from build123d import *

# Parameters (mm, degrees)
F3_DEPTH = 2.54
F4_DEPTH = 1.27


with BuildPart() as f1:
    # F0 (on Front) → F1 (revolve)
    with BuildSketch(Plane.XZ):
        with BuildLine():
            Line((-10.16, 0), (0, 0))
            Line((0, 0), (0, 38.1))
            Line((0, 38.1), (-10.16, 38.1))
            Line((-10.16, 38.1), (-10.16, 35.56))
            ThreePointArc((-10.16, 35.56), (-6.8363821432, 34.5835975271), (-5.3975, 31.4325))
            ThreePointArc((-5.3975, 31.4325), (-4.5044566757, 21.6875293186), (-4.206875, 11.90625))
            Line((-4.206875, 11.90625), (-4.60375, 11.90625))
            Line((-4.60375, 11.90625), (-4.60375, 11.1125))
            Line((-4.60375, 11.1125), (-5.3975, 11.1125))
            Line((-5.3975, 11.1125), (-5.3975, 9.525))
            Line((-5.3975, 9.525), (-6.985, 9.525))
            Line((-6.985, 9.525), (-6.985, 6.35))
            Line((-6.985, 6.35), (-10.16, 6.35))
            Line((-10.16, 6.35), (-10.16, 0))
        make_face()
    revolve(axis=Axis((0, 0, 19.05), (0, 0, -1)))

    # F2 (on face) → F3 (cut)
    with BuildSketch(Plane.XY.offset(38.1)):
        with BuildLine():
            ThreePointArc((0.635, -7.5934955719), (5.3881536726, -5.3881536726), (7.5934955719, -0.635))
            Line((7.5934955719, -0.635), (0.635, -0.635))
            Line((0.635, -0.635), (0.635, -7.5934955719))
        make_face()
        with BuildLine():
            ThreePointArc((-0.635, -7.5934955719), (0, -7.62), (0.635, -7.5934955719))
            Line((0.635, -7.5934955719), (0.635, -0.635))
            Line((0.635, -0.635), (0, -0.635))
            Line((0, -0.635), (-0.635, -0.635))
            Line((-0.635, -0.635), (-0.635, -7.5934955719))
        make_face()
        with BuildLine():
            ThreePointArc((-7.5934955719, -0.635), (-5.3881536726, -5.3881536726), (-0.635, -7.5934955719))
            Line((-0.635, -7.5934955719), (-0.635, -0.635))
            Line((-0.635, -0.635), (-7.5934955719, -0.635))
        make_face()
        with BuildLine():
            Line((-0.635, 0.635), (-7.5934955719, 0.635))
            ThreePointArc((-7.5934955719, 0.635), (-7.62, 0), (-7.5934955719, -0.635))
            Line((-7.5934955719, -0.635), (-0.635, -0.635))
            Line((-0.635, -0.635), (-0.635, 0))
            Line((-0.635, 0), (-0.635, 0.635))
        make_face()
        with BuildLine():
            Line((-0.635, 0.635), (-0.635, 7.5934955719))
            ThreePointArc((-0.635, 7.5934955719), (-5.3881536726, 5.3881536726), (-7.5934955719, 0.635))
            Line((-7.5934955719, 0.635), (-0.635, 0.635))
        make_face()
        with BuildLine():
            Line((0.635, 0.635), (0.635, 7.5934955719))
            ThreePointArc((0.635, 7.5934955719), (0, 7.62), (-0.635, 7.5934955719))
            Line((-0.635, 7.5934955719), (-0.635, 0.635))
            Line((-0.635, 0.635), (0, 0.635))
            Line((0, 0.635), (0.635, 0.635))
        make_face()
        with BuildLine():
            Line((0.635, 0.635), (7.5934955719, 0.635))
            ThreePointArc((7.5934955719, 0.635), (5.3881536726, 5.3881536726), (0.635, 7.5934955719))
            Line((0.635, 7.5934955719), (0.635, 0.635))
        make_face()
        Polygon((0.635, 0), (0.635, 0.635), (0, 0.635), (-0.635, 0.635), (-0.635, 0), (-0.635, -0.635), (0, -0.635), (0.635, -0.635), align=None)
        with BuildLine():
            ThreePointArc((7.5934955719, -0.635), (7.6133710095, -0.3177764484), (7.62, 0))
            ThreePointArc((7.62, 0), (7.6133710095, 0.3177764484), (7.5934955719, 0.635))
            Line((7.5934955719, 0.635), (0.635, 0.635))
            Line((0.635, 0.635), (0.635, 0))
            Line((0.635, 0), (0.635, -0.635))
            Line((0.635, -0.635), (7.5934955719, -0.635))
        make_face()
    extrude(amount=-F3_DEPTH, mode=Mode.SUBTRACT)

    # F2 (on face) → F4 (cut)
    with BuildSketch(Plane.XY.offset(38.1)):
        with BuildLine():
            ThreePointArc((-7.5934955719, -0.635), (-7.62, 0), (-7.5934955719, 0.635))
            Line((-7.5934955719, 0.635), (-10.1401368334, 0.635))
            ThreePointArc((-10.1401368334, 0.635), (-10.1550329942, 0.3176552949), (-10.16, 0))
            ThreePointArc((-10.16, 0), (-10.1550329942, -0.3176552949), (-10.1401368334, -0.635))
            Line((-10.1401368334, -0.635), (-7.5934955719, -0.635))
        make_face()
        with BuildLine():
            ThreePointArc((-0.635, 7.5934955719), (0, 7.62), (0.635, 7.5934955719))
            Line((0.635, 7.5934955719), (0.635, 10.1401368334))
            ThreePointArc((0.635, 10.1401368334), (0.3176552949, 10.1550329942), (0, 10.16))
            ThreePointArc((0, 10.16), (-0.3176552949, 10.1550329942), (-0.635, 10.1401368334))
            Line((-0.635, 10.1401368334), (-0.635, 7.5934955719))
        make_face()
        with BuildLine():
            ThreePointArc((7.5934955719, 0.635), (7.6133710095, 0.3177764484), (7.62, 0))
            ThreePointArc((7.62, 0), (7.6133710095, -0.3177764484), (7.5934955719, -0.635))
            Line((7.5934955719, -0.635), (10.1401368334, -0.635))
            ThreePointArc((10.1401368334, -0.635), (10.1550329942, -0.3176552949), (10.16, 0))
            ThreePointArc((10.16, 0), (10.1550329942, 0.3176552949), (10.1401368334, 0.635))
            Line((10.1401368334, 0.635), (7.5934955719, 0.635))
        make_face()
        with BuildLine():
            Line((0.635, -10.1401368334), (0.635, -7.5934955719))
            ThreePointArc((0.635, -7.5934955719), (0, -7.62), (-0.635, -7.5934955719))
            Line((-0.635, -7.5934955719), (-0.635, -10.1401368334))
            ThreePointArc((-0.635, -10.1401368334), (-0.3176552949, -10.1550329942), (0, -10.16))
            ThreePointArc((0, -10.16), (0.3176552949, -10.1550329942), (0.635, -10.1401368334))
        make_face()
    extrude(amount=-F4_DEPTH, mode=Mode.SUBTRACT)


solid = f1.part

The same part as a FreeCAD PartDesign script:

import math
import FreeCAD as App
import Part
import Sketcher
from FreeCAD import Vector
Q = App.Units.Quantity

doc = App.newDocument("Part")
body = doc.addObject("PartDesign::Body", "Body")

sketch1 = doc.addObject("Sketcher::SketchObject", "Sketch")
body.addObject(sketch1)
sketch1.AttachmentSupport = (doc.XZ_Plane, [""])
sketch1.MapMode = "FlatFace"
sketch1.addGeometry(Part.LineSegment(Vector(-10.16, 0, 0), Vector(0, 0, 0)), False)
sketch1.addGeometry(Part.LineSegment(Vector(0, 0, 0), Vector(0, 38.1, 0)), False)
sketch1.addGeometry(Part.LineSegment(Vector(0, 38.1, 0), Vector(-10.16, 38.1, 0)), False)
sketch1.addGeometry(Part.LineSegment(Vector(-10.16, 38.1, 0), Vector(-10.16, 35.56, 0)), False)
sketch1.addGeometry(Part.ArcOfCircle(Part.Circle(Vector(-9.57, 31.43, 0), Vector(0, 0, 1), 4.17), math.radians(0), math.radians(98)), False)
sketch1.addGeometry(Part.ArcOfCircle(Part.Circle(Vector(-164.73, 11.92, 0), Vector(0, 0, 1), 160.52), math.radians(0), math.radians(6.98)), False)
sketch1.addGeometry(Part.LineSegment(Vector(-4.21, 11.91, 0), Vector(-4.6, 11.91, 0)), False)
sketch1.addGeometry(Part.LineSegment(Vector(-4.6, 11.91, 0), Vector(-4.6, 11.11, 0)), False)
sketch1.addGeometry(Part.LineSegment(Vector(-4.6, 11.11, 0), Vector(-5.4, 11.11, 0)), False)
sketch1.addGeometry(Part.LineSegment(Vector(-5.4, 11.11, 0), Vector(-5.4, 9.53, 0)), False)
sketch1.addGeometry(Part.LineSegment(Vector(-5.4, 9.53, 0), Vector(-6.99, 9.53, 0)), False)
sketch1.addGeometry(Part.LineSegment(Vector(-6.99, 9.53, 0), Vector(-6.99, 6.35, 0)), False)
sketch1.addGeometry(Part.LineSegment(Vector(-6.99, 6.35, 0), Vector(-10.16, 6.35, 0)), False)
sketch1.addGeometry(Part.LineSegment(Vector(-10.16, 6.35, 0), Vector(-10.16, 0, 0)), False)
sketch1.addConstraint(Sketcher.Constraint("Coincident", 0, 2, 1, 1))
sketch1.addConstraint(Sketcher.Constraint("Coincident", 1, 2, 2, 1))
sketch1.addConstraint(Sketcher.Constraint("Coincident", 2, 2, 3, 1))
sketch1.addConstraint(Sketcher.Constraint("Coincident", 3, 2, 4, 2))
sketch1.addConstraint(Sketcher.Constraint("Coincident", 4, 1, 5, 2))
sketch1.addConstraint(Sketcher.Constraint("Coincident", 5, 1, 6, 1))
sketch1.addConstraint(Sketcher.Constraint("Coincident", 6, 2, 7, 1))
sketch1.addConstraint(Sketcher.Constraint("Coincident", 7, 2, 8, 1))
sketch1.addConstraint(Sketcher.Constraint("Coincident", 8, 2, 9, 1))
sketch1.addConstraint(Sketcher.Constraint("Coincident", 9, 2, 10, 1))
sketch1.addConstraint(Sketcher.Constraint("Coincident", 10, 2, 11, 1))
sketch1.addConstraint(Sketcher.Constraint("Coincident", 11, 2, 12, 1))
sketch1.addConstraint(Sketcher.Constraint("Coincident", 12, 2, 13, 1))
sketch1.addConstraint(Sketcher.Constraint("Coincident", 13, 2, 0, 1))
sketch1.addConstraint(Sketcher.Constraint("Horizontal", 0))
sketch1.addConstraint(Sketcher.Constraint("Vertical", 1))
sketch1.addConstraint(Sketcher.Constraint("Horizontal", 2))
sketch1.addConstraint(Sketcher.Constraint("Vertical", 3))
sketch1.addConstraint(Sketcher.Constraint("Horizontal", 6))
sketch1.addConstraint(Sketcher.Constraint("Vertical", 7))
sketch1.addConstraint(Sketcher.Constraint("Horizontal", 8))
sketch1.addConstraint(Sketcher.Constraint("Vertical", 9))
sketch1.addConstraint(Sketcher.Constraint("Horizontal", 10))
sketch1.addConstraint(Sketcher.Constraint("Vertical", 11))
sketch1.addConstraint(Sketcher.Constraint("Horizontal", 12))
sketch1.addConstraint(Sketcher.Constraint("Vertical", 13))
sketch1.addConstraint(Sketcher.Constraint("Coincident", 0, 2, -1, 1))
sketch1.addConstraint(Sketcher.Constraint("Vertical", 4, 1, 8, 2))
sketch1.addConstraint(Sketcher.Constraint("Vertical", 3, 2, 12, 2))
sketch1.addConstraint(Sketcher.Constraint("Equal", 8, 7))
sketch1.addConstraint(Sketcher.Constraint("Equal", 10, 9))
sketch1.addConstraint(Sketcher.Constraint("Equal", 12, 11))
sketch1.addConstraint(Sketcher.Constraint("DistanceX", 0, 1, 0, 2, Q("0.4 in")))
sketch1.addConstraint(Sketcher.Constraint("DistanceY", 1, 1, 1, 2, Q("1.5 in")))
sketch1.addConstraint(Sketcher.Constraint("DistanceY", 3, 2, 3, 1, Q("0.1 in")))
sketch1.addConstraint(Sketcher.Constraint("DistanceY", 13, 2, 13, 1, Q("0.25 in")))
sketch1.addConstraint(Sketcher.Constraint("DistanceY", 7, 2, 4, 1, Q("0.8 in")))
sketch1.addConstraint(Sketcher.Constraint("DistanceY", 7, 2, 4, 3, Q("0.8 in")))
sketch1.addConstraint(Sketcher.Constraint("DistanceX", 6, 2, 6, 1, Q("0.015625 in")))
sketch1.addConstraint(Sketcher.Constraint("DistanceX", 8, 2, 8, 1, Q("0.03125 in")))
sketch1.addConstraint(Sketcher.Constraint("DistanceX", 10, 2, 10, 1, Q("0.0625 in")))
sketch1.addConstraint(Sketcher.Constraint("DistanceX", 12, 2, 12, 1, Q("0.125 in")))
sketch1.addConstraint(Sketcher.Constraint("Radius", 5, 160.521593))
revolution = doc.addObject("PartDesign::Revolution", "Revolution")
body.addObject(revolution)
revolution.Profile = sketch1
revolution.ReferenceAxis = (sketch1, ["V_Axis"])
revolution.Angle = 360

sketch2 = doc.addObject("Sketcher::SketchObject", "Sketch001")
body.addObject(sketch2)
sketch2.AttachmentSupport = (doc.XY_Plane, [""])
sketch2.MapMode = "FlatFace"
sketch2.AttachmentOffset = App.Placement(Vector(0, 0, 1.5 * 25.4), App.Rotation())
sketch2.addGeometry(Part.ArcOfCircle(Part.Circle(Vector(0, 0, 0), Vector(0, 0, 1), 7.6), math.radians(-85), math.radians(-5)), False)
sketch2.addGeometry(Part.ArcOfCircle(Part.Circle(Vector(0, 0, 0), Vector(0, 0, 1), 7.6), math.radians(-4.78), math.radians(0)), False)
sketch2.addGeometry(Part.ArcOfCircle(Part.Circle(Vector(0, 0, 0), Vector(0, 0, 1), 7.6), math.radians(0), math.radians(4.78)), False)
sketch2.addGeometry(Part.ArcOfCircle(Part.Circle(Vector(0, 0, 0), Vector(0, 0, 1), 7.6), math.radians(5), math.radians(85)), False)
sketch2.addGeometry(Part.ArcOfCircle(Part.Circle(Vector(0, 0, 0), Vector(0, 0, 1), 7.6), math.radians(85.22), math.radians(94.78)), False)
sketch2.addGeometry(Part.ArcOfCircle(Part.Circle(Vector(0, 0, 0), Vector(0, 0, 1), 7.6), math.radians(95), math.radians(175)), False)
sketch2.addGeometry(Part.ArcOfCircle(Part.Circle(Vector(0, 0, 0), Vector(0, 0, 1), 7.6), math.radians(175.22), math.radians(184.78)), False)
sketch2.addGeometry(Part.ArcOfCircle(Part.Circle(Vector(0, 0, 0), Vector(0, 0, 1), 7.6), math.radians(-175), math.radians(-95)), False)
sketch2.addGeometry(Part.ArcOfCircle(Part.Circle(Vector(0, 0, 0), Vector(0, 0, 1), 7.6), math.radians(-94.78), math.radians(-85.22)), False)
sketch2.addConstraint(Sketcher.Constraint("Tangent", 0, 2, 1, 1))
sketch2.addConstraint(Sketcher.Constraint("Tangent", 1, 2, 2, 1))
sketch2.addConstraint(Sketcher.Constraint("Tangent", 2, 2, 3, 1))
sketch2.addConstraint(Sketcher.Constraint("Tangent", 3, 2, 4, 1))
sketch2.addConstraint(Sketcher.Constraint("Tangent", 4, 2, 5, 1))
sketch2.addConstraint(Sketcher.Constraint("Tangent", 5, 2, 6, 1))
sketch2.addConstraint(Sketcher.Constraint("Tangent", 6, 2, 7, 1))
sketch2.addConstraint(Sketcher.Constraint("Tangent", 7, 2, 8, 1))
sketch2.addConstraint(Sketcher.Constraint("Tangent", 8, 2, 0, 1))
sketch2.addConstraint(Sketcher.Constraint("Coincident", 0, 3, -1, 1))
sketch2.addConstraint(Sketcher.Constraint("Coincident", 2, 3, -1, 1))
sketch2.addConstraint(Sketcher.Constraint("Coincident", 4, 3, -1, 1))
sketch2.addConstraint(Sketcher.Constraint("Coincident", 6, 3, -1, 1))
sketch2.addConstraint(Sketcher.Constraint("PointOnObject", 1, 2, -1))
sketch2.addConstraint(Sketcher.Constraint("Horizontal", 3, 2, 4, 2))
sketch2.addConstraint(Sketcher.Constraint("Horizontal", 2, 2, 5, 2))
sketch2.addConstraint(Sketcher.Constraint("Horizontal", 0, 2, 6, 2))
sketch2.addConstraint(Sketcher.Constraint("Horizontal", 7, 2, 8, 2))
sketch2.addConstraint(Sketcher.Constraint("Vertical", 0, 2, 2, 2))
sketch2.addConstraint(Sketcher.Constraint("Vertical", 4, 2, 7, 2))
sketch2.addConstraint(Sketcher.Constraint("Radius", 0, Q("0.3 in")))
sketch2.addConstraint(Sketcher.Constraint("DistanceY", 0, 2, 2, 2, Q("0.05 in")))
sketch2.addConstraint(Sketcher.Constraint("DistanceX", 4, 2, 3, 2, Q("0.05 in")))
pocket1 = doc.addObject("PartDesign::Pocket", "Pocket")
body.addObject(pocket1)
pocket1.Profile = sketch2
pocket1.Length = Q("0.1 in")

sketch3 = doc.addObject("Sketcher::SketchObject", "Sketch002")
body.addObject(sketch3)
sketch3.AttachmentSupport = (doc.XY_Plane, [""])
sketch3.MapMode = "FlatFace"
sketch3.AttachmentOffset = App.Placement(Vector(0, 0, 1.5 * 25.4), App.Rotation())
sketch3.addGeometry(Part.ArcOfCircle(Part.Circle(Vector(0, 0, 0), Vector(0, 0, 1), 7.6), math.radians(175.22), math.radians(184.78)), False)
sketch3.addGeometry(Part.LineSegment(Vector(-7.6, 0.6, 0), Vector(-10.1, 0.6, 0)), False)
sketch3.addGeometry(Part.ArcOfCircle(Part.Circle(Vector(0, 0, 0), Vector(0, 0, 1), 10.2), math.radians(176.42), math.radians(180)), False)
sketch3.addGeometry(Part.ArcOfCircle(Part.Circle(Vector(0, 0, 0), Vector(0, 0, 1), 10.2), math.radians(-180), math.radians(-176.42)), False)
sketch3.addGeometry(Part.LineSegment(Vector(-10.1, -0.6, 0), Vector(-7.6, -0.6, 0)), False)
sketch3.addGeometry(Part.ArcOfCircle(Part.Circle(Vector(0, 0, 0), Vector(0, 0, 1), 7.6), math.radians(85.22), math.radians(94.78)), False)
sketch3.addGeometry(Part.LineSegment(Vector(0.6, 7.6, 0), Vector(0.6, 10.1, 0)), False)
sketch3.addGeometry(Part.ArcOfCircle(Part.Circle(Vector(0, 0, 0), Vector(0, 0, 1), 10.2), math.radians(86.42), math.radians(90)), False)
sketch3.addGeometry(Part.ArcOfCircle(Part.Circle(Vector(0, 0, 0), Vector(0, 0, 1), 10.2), math.radians(90), math.radians(93.58)), False)
sketch3.addGeometry(Part.LineSegment(Vector(-0.6, 10.1, 0), Vector(-0.6, 7.6, 0)), False)
sketch3.addGeometry(Part.ArcOfCircle(Part.Circle(Vector(0, 0, 0), Vector(0, 0, 1), 7.6), math.radians(0), math.radians(4.78)), False)
sketch3.addGeometry(Part.ArcOfCircle(Part.Circle(Vector(0, 0, 0), Vector(0, 0, 1), 7.6), math.radians(-4.78), math.radians(0)), False)
sketch3.addGeometry(Part.LineSegment(Vector(7.6, -0.6, 0), Vector(10.1, -0.6, 0)), False)
sketch3.addGeometry(Part.ArcOfCircle(Part.Circle(Vector(0, 0, 0), Vector(0, 0, 1), 10.2), math.radians(-3.58), math.radians(0)), False)
sketch3.addGeometry(Part.ArcOfCircle(Part.Circle(Vector(0, 0, 0), Vector(0, 0, 1), 10.2), math.radians(0), math.radians(3.58)), False)
sketch3.addGeometry(Part.LineSegment(Vector(10.1, 0.6, 0), Vector(7.6, 0.6, 0)), False)
sketch3.addGeometry(Part.LineSegment(Vector(0.6, -10.1, 0), Vector(0.6, -7.6, 0)), False)
sketch3.addGeometry(Part.ArcOfCircle(Part.Circle(Vector(0, 0, 0), Vector(0, 0, 1), 7.6), math.radians(-94.78), math.radians(-85.22)), False)
sketch3.addGeometry(Part.LineSegment(Vector(-0.6, -7.6, 0), Vector(-0.6, -10.1, 0)), False)
sketch3.addGeometry(Part.ArcOfCircle(Part.Circle(Vector(0, 0, 0), Vector(0, 0, 1), 10.2), math.radians(-93.58), math.radians(-90)), False)
sketch3.addGeometry(Part.ArcOfCircle(Part.Circle(Vector(0, 0, 0), Vector(0, 0, 1), 10.2), math.radians(-90), math.radians(-86.42)), False)
sketch3.addConstraint(Sketcher.Constraint("Coincident", 0, 1, 1, 1))
sketch3.addConstraint(Sketcher.Constraint("Coincident", 1, 2, 2, 1))
sketch3.addConstraint(Sketcher.Constraint("Tangent", 2, 2, 3, 1))
sketch3.addConstraint(Sketcher.Constraint("Coincident", 3, 2, 4, 1))
sketch3.addConstraint(Sketcher.Constraint("Coincident", 4, 2, 0, 2))
sketch3.addConstraint(Sketcher.Constraint("Coincident", 5, 1, 6, 1))
sketch3.addConstraint(Sketcher.Constraint("Coincident", 6, 2, 7, 1))
sketch3.addConstraint(Sketcher.Constraint("Tangent", 7, 2, 8, 1))
sketch3.addConstraint(Sketcher.Constraint("Coincident", 8, 2, 9, 1))
sketch3.addConstraint(Sketcher.Constraint("Coincident", 9, 2, 5, 2))
sketch3.addConstraint(Sketcher.Constraint("Tangent", 10, 1, 11, 2))
sketch3.addConstraint(Sketcher.Constraint("Coincident", 11, 1, 12, 1))
sketch3.addConstraint(Sketcher.Constraint("Coincident", 12, 2, 13, 1))
sketch3.addConstraint(Sketcher.Constraint("Tangent", 13, 2, 14, 1))
sketch3.addConstraint(Sketcher.Constraint("Coincident", 14, 2, 15, 1))
sketch3.addConstraint(Sketcher.Constraint("Coincident", 15, 2, 10, 2))
sketch3.addConstraint(Sketcher.Constraint("Coincident", 16, 2, 17, 2))
sketch3.addConstraint(Sketcher.Constraint("Coincident", 17, 1, 18, 1))
sketch3.addConstraint(Sketcher.Constraint("Coincident", 18, 2, 19, 1))
sketch3.addConstraint(Sketcher.Constraint("Tangent", 19, 2, 20, 1))
sketch3.addConstraint(Sketcher.Constraint("Coincident", 20, 2, 16, 1))
sketch3.addConstraint(Sketcher.Constraint("Horizontal", 1))
sketch3.addConstraint(Sketcher.Constraint("Horizontal", 4))
sketch3.addConstraint(Sketcher.Constraint("Vertical", 6))
sketch3.addConstraint(Sketcher.Constraint("Vertical", 9))
sketch3.addConstraint(Sketcher.Constraint("Horizontal", 12))
sketch3.addConstraint(Sketcher.Constraint("Horizontal", 15))
sketch3.addConstraint(Sketcher.Constraint("Vertical", 16))
sketch3.addConstraint(Sketcher.Constraint("Vertical", 18))
sketch3.addConstraint(Sketcher.Constraint("Coincident", 0, 3, -1, 1))
sketch3.addConstraint(Sketcher.Constraint("Coincident", 2, 3, -1, 1))
sketch3.addConstraint(Sketcher.Constraint("Coincident", 5, 3, -1, 1))
sketch3.addConstraint(Sketcher.Constraint("Coincident", 7, 3, -1, 1))
sketch3.addConstraint(Sketcher.Constraint("Coincident", 10, 3, -1, 1))
sketch3.addConstraint(Sketcher.Constraint("Coincident", 13, 3, -1, 1))
sketch3.addConstraint(Sketcher.Constraint("Coincident", 17, 3, -1, 1))
sketch3.addConstraint(Sketcher.Constraint("Coincident", 19, 3, -1, 1))
sketch3.addConstraint(Sketcher.Constraint("Equal", 2, 3))
sketch3.addConstraint(Sketcher.Constraint("Equal", 0, 5))
sketch3.addConstraint(Sketcher.Constraint("Equal", 3, 7))
sketch3.addConstraint(Sketcher.Constraint("Equal", 7, 8))
sketch3.addConstraint(Sketcher.Constraint("Equal", 5, 10))
sketch3.addConstraint(Sketcher.Constraint("Equal", 10, 11))
sketch3.addConstraint(Sketcher.Constraint("Equal", 8, 13))
sketch3.addConstraint(Sketcher.Constraint("Equal", 13, 14))
sketch3.addConstraint(Sketcher.Constraint("Equal", 11, 17))
sketch3.addConstraint(Sketcher.Constraint("Equal", 14, 19))
sketch3.addConstraint(Sketcher.Constraint("Equal", 19, 20))
sketch3.addConstraint(Sketcher.Constraint("PointOnObject", 2, 2, -1))
sketch3.addConstraint(Sketcher.Constraint("PointOnObject", 7, 2, -2))
sketch3.addConstraint(Sketcher.Constraint("PointOnObject", 10, 1, -1))
sketch3.addConstraint(Sketcher.Constraint("PointOnObject", 13, 2, -1))
sketch3.addConstraint(Sketcher.Constraint("PointOnObject", 19, 2, -2))
sketch3.addConstraint(Sketcher.Constraint("Horizontal", 6, 2, 8, 2))
sketch3.addConstraint(Sketcher.Constraint("Horizontal", 4, 2, 11, 1))
sketch3.addConstraint(Sketcher.Constraint("Horizontal", 1, 2, 14, 2))
sketch3.addConstraint(Sketcher.Constraint("Horizontal", 16, 2, 17, 1))
sketch3.addConstraint(Sketcher.Constraint("Vertical", 1, 2, 3, 2))
sketch3.addConstraint(Sketcher.Constraint("Vertical", 6, 2, 16, 2))
sketch3.addConstraint(Sketcher.Constraint("Equal", 15, 6))
sketch3.addConstraint(Sketcher.Constraint("Radius", 0, Q("0.3 in")))
sketch3.addConstraint(Sketcher.Constraint("Radius", 2, Q("0.4 in")))
sketch3.addConstraint(Sketcher.Constraint("DistanceY", 3, 2, 1, 2, Q("0.05 in")))
pocket2 = doc.addObject("PartDesign::Pocket", "Pocket001")
body.addObject(pocket2)
pocket2.Profile = sketch3
pocket2.Length = Q("0.05 in")

doc.recompute()
